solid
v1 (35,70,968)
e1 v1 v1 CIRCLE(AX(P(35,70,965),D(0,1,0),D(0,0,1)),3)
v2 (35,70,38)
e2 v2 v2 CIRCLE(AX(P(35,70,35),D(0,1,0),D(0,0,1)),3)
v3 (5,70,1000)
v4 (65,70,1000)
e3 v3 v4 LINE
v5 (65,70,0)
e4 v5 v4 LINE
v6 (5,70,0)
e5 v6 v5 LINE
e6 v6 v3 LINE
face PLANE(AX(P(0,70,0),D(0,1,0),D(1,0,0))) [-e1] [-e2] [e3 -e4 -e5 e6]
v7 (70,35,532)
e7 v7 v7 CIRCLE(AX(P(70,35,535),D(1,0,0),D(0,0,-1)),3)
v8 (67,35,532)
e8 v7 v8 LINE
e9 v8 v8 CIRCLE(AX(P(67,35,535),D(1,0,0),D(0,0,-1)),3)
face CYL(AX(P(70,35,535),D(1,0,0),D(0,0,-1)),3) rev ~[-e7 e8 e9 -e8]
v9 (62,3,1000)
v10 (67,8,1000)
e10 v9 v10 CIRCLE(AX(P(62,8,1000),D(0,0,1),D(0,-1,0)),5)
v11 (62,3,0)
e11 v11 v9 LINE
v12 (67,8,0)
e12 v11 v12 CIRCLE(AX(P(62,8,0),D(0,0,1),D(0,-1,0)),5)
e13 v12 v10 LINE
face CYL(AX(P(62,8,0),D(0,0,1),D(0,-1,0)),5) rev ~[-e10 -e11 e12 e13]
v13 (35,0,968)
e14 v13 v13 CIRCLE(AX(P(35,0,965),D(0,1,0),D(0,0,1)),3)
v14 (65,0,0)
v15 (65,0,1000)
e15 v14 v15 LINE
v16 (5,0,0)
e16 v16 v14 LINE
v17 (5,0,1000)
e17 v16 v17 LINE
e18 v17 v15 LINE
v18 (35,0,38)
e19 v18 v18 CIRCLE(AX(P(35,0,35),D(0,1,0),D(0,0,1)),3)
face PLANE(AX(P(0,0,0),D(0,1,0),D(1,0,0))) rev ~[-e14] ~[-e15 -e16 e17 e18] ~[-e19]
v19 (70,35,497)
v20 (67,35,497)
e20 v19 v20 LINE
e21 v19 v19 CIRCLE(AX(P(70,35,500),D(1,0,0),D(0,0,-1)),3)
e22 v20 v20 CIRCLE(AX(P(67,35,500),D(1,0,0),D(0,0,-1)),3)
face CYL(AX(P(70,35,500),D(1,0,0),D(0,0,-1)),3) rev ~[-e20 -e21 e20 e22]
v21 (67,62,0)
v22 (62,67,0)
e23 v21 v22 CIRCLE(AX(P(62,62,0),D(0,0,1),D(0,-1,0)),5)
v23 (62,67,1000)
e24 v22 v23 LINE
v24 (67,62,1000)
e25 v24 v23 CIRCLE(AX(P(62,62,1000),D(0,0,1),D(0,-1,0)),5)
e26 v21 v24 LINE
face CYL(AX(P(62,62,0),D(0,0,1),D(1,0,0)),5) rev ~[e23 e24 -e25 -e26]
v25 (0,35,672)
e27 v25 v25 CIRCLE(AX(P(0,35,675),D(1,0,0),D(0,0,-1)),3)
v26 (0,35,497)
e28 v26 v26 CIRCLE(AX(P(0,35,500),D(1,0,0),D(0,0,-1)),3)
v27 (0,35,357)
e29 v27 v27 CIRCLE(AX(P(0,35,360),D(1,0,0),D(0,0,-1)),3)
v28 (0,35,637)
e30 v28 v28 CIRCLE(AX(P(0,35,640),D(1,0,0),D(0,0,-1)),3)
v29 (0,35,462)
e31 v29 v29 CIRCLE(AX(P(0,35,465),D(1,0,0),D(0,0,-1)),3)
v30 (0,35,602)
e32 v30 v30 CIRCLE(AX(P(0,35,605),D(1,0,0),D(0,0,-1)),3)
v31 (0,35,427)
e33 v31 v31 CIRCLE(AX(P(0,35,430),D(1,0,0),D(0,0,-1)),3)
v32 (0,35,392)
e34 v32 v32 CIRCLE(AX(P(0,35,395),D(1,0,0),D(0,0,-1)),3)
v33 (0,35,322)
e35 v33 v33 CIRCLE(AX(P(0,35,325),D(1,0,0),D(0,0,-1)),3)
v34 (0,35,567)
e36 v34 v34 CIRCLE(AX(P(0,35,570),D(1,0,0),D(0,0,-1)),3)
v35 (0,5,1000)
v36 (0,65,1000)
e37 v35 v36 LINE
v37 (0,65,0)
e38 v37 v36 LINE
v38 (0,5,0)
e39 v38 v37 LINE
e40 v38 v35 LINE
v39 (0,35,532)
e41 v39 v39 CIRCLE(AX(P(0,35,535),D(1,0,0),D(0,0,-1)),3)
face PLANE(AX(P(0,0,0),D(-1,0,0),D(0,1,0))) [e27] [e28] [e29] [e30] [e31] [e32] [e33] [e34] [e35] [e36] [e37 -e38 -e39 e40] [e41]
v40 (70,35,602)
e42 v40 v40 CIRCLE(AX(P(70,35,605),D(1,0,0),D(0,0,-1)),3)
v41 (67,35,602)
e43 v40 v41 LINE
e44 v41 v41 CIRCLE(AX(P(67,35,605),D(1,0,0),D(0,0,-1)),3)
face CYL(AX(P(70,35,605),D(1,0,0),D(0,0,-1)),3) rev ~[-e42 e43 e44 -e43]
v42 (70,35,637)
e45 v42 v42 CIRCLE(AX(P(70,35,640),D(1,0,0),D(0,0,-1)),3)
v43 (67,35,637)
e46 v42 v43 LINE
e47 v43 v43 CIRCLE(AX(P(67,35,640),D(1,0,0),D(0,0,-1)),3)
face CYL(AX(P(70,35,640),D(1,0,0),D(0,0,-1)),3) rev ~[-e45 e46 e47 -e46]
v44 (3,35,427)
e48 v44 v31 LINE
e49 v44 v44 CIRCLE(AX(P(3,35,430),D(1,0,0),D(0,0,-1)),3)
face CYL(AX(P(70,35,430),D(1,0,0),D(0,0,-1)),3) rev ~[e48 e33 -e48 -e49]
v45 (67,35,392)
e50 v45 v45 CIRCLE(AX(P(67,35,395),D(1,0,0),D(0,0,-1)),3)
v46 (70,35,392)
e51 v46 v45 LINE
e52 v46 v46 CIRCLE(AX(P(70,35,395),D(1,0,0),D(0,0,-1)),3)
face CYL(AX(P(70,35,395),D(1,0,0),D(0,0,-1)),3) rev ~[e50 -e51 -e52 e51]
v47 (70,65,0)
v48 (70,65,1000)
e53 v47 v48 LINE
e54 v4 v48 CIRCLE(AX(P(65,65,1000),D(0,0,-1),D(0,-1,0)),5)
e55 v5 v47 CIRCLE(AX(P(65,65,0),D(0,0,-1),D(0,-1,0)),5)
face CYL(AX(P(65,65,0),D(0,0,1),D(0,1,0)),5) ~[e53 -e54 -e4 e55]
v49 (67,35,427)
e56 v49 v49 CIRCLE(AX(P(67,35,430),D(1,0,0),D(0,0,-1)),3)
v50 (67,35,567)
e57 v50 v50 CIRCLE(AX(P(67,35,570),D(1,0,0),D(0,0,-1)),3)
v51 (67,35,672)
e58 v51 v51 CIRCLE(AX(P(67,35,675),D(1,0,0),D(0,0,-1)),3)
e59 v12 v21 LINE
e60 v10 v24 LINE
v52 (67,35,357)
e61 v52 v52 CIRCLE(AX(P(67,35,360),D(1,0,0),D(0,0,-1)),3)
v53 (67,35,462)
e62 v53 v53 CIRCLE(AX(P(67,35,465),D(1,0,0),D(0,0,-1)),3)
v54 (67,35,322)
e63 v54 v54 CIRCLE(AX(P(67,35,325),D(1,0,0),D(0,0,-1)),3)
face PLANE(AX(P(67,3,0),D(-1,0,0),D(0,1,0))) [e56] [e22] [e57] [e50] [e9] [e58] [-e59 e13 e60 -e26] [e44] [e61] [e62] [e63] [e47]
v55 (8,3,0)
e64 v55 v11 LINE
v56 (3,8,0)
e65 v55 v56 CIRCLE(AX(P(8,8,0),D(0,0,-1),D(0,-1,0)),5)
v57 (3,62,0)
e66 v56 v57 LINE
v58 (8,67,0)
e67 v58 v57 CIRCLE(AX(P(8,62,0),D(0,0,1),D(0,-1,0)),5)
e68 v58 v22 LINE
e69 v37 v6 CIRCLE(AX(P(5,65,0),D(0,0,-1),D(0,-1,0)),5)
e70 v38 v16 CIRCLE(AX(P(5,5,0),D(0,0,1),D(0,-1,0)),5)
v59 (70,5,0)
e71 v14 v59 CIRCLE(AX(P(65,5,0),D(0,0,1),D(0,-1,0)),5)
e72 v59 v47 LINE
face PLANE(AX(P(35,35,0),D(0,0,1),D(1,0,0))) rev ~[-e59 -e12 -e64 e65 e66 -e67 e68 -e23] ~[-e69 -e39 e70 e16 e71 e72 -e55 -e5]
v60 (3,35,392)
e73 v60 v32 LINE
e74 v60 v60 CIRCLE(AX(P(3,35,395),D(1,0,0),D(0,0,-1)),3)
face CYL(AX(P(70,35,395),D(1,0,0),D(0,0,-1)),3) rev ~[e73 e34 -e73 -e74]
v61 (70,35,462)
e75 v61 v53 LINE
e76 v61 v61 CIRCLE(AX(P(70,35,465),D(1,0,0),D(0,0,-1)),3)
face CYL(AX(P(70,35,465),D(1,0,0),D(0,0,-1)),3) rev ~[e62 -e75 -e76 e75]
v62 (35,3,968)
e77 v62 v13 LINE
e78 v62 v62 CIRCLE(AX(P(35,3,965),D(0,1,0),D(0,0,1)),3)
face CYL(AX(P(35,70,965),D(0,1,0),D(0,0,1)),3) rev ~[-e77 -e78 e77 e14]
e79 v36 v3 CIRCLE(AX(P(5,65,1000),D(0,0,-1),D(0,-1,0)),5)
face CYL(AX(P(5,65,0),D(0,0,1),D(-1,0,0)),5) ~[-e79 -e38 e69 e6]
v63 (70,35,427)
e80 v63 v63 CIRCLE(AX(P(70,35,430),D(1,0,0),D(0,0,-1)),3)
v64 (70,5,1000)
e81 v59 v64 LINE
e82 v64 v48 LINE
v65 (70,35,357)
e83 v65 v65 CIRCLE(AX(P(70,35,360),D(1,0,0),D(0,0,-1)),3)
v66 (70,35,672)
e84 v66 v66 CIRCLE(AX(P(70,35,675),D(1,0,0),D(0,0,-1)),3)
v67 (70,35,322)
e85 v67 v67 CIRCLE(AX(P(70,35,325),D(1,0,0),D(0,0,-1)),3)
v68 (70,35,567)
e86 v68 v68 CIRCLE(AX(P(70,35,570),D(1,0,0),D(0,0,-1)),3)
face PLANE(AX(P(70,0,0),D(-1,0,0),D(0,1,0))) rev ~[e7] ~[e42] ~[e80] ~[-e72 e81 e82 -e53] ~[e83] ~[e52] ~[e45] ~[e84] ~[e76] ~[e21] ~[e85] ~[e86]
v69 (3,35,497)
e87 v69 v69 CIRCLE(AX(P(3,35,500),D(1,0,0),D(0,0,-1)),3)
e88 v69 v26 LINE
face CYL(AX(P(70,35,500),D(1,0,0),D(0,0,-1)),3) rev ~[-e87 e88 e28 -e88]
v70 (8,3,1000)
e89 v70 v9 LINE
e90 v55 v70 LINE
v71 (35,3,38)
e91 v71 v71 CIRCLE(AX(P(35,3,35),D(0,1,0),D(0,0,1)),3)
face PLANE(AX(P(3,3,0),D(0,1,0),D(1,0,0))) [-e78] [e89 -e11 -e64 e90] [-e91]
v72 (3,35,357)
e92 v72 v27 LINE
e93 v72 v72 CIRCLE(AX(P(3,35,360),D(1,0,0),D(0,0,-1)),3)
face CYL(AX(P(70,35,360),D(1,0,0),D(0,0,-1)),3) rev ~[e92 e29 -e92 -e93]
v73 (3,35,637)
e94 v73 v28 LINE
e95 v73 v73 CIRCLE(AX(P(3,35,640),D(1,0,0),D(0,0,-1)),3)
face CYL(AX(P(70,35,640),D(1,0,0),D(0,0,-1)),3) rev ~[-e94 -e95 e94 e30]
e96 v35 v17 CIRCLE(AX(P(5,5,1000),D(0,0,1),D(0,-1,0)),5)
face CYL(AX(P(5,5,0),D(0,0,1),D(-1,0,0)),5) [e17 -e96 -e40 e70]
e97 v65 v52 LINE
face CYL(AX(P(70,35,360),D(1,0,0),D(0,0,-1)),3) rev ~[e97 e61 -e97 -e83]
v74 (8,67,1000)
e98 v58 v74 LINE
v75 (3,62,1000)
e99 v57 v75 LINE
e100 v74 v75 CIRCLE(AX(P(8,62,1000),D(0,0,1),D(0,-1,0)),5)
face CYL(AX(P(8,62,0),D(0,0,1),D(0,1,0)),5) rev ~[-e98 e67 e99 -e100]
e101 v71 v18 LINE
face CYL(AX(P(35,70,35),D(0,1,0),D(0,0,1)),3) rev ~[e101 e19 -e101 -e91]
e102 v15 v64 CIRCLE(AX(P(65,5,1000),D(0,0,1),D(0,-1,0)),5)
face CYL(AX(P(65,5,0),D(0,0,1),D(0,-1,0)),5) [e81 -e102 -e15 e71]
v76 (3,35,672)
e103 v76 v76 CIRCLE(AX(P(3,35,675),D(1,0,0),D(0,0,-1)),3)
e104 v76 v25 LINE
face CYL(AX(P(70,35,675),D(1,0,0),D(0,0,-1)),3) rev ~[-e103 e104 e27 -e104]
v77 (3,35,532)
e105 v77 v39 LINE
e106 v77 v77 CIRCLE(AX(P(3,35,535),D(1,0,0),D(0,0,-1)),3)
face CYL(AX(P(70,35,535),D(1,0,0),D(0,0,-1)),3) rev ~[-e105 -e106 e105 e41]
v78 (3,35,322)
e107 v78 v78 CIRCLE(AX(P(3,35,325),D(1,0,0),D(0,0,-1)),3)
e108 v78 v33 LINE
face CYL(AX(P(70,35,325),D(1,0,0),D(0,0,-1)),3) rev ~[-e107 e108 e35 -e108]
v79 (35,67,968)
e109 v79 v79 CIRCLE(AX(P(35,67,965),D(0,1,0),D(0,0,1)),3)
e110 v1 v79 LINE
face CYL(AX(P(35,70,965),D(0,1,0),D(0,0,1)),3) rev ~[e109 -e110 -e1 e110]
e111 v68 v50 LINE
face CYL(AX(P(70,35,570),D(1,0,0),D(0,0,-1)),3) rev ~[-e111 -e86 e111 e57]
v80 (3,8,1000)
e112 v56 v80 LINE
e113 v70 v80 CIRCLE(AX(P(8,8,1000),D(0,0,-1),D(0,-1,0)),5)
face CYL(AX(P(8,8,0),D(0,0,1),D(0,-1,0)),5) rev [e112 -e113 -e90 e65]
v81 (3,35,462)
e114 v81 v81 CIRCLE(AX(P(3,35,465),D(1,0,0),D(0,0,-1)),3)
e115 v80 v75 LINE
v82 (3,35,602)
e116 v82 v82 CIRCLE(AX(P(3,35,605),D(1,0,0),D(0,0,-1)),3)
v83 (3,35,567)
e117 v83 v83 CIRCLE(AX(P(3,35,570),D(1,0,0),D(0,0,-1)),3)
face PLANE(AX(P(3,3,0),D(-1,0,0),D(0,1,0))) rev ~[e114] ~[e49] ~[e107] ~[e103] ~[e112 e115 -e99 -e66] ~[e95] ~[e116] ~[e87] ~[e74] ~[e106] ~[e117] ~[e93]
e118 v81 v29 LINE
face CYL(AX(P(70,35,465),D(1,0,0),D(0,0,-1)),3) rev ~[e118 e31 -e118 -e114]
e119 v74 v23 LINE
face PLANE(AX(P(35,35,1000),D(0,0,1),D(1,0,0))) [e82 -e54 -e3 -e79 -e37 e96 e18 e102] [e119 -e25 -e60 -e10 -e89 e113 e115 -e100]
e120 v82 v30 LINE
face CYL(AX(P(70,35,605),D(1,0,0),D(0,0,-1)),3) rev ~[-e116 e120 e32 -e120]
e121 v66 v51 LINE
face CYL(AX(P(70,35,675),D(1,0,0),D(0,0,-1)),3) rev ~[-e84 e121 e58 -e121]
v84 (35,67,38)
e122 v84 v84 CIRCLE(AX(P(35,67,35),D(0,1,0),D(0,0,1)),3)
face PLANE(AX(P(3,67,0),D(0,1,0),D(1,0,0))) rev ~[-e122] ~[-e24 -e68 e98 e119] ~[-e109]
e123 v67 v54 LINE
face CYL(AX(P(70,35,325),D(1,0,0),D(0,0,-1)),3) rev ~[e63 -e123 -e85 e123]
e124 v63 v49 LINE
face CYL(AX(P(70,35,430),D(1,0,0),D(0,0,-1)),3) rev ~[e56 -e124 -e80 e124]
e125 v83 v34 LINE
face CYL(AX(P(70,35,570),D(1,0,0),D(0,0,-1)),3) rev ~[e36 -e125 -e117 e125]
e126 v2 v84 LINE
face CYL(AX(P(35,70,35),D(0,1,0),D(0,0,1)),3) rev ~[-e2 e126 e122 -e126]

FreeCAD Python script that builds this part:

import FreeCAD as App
import Part
import Sketcher
from FreeCAD import Vector


def edges_at(feature, points):
    """Names of the edges that pass closest to the given points."""
    edges = feature.Shape.Edges
    near = lambda p: min(range(len(edges)), key=lambda i: edges[i].distToShape(Part.Vertex(*p))[0])
    return sorted({f"Edge{near(p) + 1}" for p in points})

doc = App.newDocument("Part")
body = doc.addObject("PartDesign::Body", "Body")

# Sketch on XY plane
sketch1 = doc.addObject("Sketcher::SketchObject", "Sketch")
body.addObject(sketch1)
sketch1.AttachmentSupport = (doc.XY_Plane, [""])
sketch1.MapMode = "FlatFace"
sketch1.addGeometry([
    Part.LineSegment(Vector(0, 70, 0), Vector(0, 0, 0)),  # 0
    Part.LineSegment(Vector(0, 0, 0), Vector(70, 0, 0)),  # 1
    Part.LineSegment(Vector(70, 0, 0), Vector(70, 70, 0)),  # 2
    Part.LineSegment(Vector(70, 70, 0), Vector(0, 70, 0)),  # 3
    Part.LineSegment(Vector(67, 3, 0), Vector(3, 3, 0)),  # 4
    Part.LineSegment(Vector(3, 3, 0), Vector(3, 67, 0)),  # 5
    Part.LineSegment(Vector(3, 67, 0), Vector(67, 67, 0)),  # 6
    Part.LineSegment(Vector(67, 67, 0), Vector(67, 3, 0)),  # 7
], False)
sketch1.addConstraint([
    Sketcher.Constraint("Coincident", 0, 2, 1, 1),
    Sketcher.Constraint("Coincident", 1, 2, 2, 1),
    Sketcher.Constraint("Coincident", 2, 2, 3, 1),
    Sketcher.Constraint("Coincident", 3, 2, 0, 1),
    Sketcher.Constraint("Coincident", 4, 2, 5, 1),
    Sketcher.Constraint("Coincident", 5, 2, 6, 1),
    Sketcher.Constraint("Coincident", 6, 2, 7, 1),
    Sketcher.Constraint("Coincident", 7, 2, 4, 1),
    Sketcher.Constraint("Vertical", 0),
    Sketcher.Constraint("Horizontal", 1),
    Sketcher.Constraint("Vertical", 2),
    Sketcher.Constraint("Horizontal", 3),
    Sketcher.Constraint("Horizontal", 4),
    Sketcher.Constraint("Vertical", 5),
    Sketcher.Constraint("Horizontal", 6),
    Sketcher.Constraint("Vertical", 7),
    Sketcher.Constraint("Coincident", 0, 2, -1, 1),
    Sketcher.Constraint("Equal", 3, 0),
    Sketcher.Constraint("Equal", 6, 5),
    Sketcher.Constraint("DistanceX", 1, 1, 1, 2, 70.0),
    Sketcher.Constraint("DistanceX", 4, 2, 4, 1, 64.0),
    Sketcher.Constraint("DistanceX", -1, 1, 4, 2, 3.0),
    Sketcher.Constraint("DistanceY", -1, 1, 4, 2, 3.0),
])
pad1 = doc.addObject("PartDesign::Pad", "Pad")
body.addObject(pad1)
pad1.Profile = sketch1
pad1.Length = 1000
doc.recompute()

fillet = doc.addObject("PartDesign::Fillet", "Fillet")
body.addObject(fillet)
fillet.Base = (pad1, edges_at(pad1, [
    (3, 67, 500),
    (3, 3, 500),
    (67, 3, 500),
    (67, 67, 500),
    (0, 70, 500),
    (70, 70, 500),
    (70, 0, 500),
    (0, 0, 500),
]))
fillet.Radius = 5

# Sketch on XZ plane
sketch2 = doc.addObject("Sketcher::SketchObject", "Sketch001")
body.addObject(sketch2)
sketch2.AttachmentSupport = (doc.XZ_Plane, [""])
sketch2.MapMode = "FlatFace"
sketch2.AttachmentOffset = App.Placement(Vector(0, 0, -70), App.Rotation())
sketch2.addGeometry([
    Part.Circle(Vector(35, 965, 0), Vector(0, 0, 1), 3),
    Part.Circle(Vector(35, 35, 0), Vector(0, 0, 1), 3),
], False)
sketch2.addConstraint([
    Sketcher.Constraint("Equal", 0, 1),
    Sketcher.Constraint("Vertical", 0, 3, 1, 3),
    Sketcher.Constraint("Diameter", 0, 6.0),
    Sketcher.Constraint("DistanceX", -1, 1, 0, 3, 35.0),
    Sketcher.Constraint("DistanceY", -1, 1, 0, 3, 965.0),
    Sketcher.Constraint("DistanceY", -1, 1, 1, 3, 35.0),
])
pocket1 = doc.addObject("PartDesign::Pocket", "Pocket")
body.addObject(pocket1)
pocket1.Profile = sketch2
pocket1.Length = 70
pocket1.Reversed = True

# Sketch on YZ plane
sketch3 = doc.addObject("Sketcher::SketchObject", "Sketch002")
body.addObject(sketch3)
sketch3.AttachmentSupport = (doc.YZ_Plane, [""])
sketch3.MapMode = "FlatFace"
sketch3.AttachmentOffset = App.Placement(Vector(0, 0, 70), App.Rotation())
sketch3.addGeometry(Part.Circle(Vector(35, 500, 0), Vector(0, 0, 1), 3), False)
sketch3.addConstraint([
    Sketcher.Constraint("Diameter", 0, 6.0),
    Sketcher.Constraint("DistanceX", -1, 1, 0, 3, 35.0),
    Sketcher.Constraint("DistanceY", -1, 1, 0, 3, 500.0),
])
pocket2 = doc.addObject("PartDesign::Pocket", "Pocket001")
body.addObject(pocket2)
pocket2.Profile = sketch3
pocket2.Length = 70
doc.recompute()

linearpattern = doc.addObject("PartDesign::LinearPattern", "LinearPattern")
body.addObject(linearpattern)
linearpattern.Originals = [pocket2]
linearpattern.Direction = (doc.Z_Axis, [""])
linearpattern.Mode = "offset"
linearpattern.Offset = 35
linearpattern.Occurrences = 6
linearpattern.Reversed = True
body.Tip = linearpattern
doc.recompute()

linearpattern2 = doc.addObject("PartDesign::LinearPattern", "LinearPattern001")
body.addObject(linearpattern2)
linearpattern2.Originals = [pocket2]
linearpattern2.Direction = (doc.Z_Axis, [""])
linearpattern2.Mode = "offset"
linearpattern2.Offset = 35
linearpattern2.Occurrences = 6
body.Tip = linearpattern2

doc.recompute()
